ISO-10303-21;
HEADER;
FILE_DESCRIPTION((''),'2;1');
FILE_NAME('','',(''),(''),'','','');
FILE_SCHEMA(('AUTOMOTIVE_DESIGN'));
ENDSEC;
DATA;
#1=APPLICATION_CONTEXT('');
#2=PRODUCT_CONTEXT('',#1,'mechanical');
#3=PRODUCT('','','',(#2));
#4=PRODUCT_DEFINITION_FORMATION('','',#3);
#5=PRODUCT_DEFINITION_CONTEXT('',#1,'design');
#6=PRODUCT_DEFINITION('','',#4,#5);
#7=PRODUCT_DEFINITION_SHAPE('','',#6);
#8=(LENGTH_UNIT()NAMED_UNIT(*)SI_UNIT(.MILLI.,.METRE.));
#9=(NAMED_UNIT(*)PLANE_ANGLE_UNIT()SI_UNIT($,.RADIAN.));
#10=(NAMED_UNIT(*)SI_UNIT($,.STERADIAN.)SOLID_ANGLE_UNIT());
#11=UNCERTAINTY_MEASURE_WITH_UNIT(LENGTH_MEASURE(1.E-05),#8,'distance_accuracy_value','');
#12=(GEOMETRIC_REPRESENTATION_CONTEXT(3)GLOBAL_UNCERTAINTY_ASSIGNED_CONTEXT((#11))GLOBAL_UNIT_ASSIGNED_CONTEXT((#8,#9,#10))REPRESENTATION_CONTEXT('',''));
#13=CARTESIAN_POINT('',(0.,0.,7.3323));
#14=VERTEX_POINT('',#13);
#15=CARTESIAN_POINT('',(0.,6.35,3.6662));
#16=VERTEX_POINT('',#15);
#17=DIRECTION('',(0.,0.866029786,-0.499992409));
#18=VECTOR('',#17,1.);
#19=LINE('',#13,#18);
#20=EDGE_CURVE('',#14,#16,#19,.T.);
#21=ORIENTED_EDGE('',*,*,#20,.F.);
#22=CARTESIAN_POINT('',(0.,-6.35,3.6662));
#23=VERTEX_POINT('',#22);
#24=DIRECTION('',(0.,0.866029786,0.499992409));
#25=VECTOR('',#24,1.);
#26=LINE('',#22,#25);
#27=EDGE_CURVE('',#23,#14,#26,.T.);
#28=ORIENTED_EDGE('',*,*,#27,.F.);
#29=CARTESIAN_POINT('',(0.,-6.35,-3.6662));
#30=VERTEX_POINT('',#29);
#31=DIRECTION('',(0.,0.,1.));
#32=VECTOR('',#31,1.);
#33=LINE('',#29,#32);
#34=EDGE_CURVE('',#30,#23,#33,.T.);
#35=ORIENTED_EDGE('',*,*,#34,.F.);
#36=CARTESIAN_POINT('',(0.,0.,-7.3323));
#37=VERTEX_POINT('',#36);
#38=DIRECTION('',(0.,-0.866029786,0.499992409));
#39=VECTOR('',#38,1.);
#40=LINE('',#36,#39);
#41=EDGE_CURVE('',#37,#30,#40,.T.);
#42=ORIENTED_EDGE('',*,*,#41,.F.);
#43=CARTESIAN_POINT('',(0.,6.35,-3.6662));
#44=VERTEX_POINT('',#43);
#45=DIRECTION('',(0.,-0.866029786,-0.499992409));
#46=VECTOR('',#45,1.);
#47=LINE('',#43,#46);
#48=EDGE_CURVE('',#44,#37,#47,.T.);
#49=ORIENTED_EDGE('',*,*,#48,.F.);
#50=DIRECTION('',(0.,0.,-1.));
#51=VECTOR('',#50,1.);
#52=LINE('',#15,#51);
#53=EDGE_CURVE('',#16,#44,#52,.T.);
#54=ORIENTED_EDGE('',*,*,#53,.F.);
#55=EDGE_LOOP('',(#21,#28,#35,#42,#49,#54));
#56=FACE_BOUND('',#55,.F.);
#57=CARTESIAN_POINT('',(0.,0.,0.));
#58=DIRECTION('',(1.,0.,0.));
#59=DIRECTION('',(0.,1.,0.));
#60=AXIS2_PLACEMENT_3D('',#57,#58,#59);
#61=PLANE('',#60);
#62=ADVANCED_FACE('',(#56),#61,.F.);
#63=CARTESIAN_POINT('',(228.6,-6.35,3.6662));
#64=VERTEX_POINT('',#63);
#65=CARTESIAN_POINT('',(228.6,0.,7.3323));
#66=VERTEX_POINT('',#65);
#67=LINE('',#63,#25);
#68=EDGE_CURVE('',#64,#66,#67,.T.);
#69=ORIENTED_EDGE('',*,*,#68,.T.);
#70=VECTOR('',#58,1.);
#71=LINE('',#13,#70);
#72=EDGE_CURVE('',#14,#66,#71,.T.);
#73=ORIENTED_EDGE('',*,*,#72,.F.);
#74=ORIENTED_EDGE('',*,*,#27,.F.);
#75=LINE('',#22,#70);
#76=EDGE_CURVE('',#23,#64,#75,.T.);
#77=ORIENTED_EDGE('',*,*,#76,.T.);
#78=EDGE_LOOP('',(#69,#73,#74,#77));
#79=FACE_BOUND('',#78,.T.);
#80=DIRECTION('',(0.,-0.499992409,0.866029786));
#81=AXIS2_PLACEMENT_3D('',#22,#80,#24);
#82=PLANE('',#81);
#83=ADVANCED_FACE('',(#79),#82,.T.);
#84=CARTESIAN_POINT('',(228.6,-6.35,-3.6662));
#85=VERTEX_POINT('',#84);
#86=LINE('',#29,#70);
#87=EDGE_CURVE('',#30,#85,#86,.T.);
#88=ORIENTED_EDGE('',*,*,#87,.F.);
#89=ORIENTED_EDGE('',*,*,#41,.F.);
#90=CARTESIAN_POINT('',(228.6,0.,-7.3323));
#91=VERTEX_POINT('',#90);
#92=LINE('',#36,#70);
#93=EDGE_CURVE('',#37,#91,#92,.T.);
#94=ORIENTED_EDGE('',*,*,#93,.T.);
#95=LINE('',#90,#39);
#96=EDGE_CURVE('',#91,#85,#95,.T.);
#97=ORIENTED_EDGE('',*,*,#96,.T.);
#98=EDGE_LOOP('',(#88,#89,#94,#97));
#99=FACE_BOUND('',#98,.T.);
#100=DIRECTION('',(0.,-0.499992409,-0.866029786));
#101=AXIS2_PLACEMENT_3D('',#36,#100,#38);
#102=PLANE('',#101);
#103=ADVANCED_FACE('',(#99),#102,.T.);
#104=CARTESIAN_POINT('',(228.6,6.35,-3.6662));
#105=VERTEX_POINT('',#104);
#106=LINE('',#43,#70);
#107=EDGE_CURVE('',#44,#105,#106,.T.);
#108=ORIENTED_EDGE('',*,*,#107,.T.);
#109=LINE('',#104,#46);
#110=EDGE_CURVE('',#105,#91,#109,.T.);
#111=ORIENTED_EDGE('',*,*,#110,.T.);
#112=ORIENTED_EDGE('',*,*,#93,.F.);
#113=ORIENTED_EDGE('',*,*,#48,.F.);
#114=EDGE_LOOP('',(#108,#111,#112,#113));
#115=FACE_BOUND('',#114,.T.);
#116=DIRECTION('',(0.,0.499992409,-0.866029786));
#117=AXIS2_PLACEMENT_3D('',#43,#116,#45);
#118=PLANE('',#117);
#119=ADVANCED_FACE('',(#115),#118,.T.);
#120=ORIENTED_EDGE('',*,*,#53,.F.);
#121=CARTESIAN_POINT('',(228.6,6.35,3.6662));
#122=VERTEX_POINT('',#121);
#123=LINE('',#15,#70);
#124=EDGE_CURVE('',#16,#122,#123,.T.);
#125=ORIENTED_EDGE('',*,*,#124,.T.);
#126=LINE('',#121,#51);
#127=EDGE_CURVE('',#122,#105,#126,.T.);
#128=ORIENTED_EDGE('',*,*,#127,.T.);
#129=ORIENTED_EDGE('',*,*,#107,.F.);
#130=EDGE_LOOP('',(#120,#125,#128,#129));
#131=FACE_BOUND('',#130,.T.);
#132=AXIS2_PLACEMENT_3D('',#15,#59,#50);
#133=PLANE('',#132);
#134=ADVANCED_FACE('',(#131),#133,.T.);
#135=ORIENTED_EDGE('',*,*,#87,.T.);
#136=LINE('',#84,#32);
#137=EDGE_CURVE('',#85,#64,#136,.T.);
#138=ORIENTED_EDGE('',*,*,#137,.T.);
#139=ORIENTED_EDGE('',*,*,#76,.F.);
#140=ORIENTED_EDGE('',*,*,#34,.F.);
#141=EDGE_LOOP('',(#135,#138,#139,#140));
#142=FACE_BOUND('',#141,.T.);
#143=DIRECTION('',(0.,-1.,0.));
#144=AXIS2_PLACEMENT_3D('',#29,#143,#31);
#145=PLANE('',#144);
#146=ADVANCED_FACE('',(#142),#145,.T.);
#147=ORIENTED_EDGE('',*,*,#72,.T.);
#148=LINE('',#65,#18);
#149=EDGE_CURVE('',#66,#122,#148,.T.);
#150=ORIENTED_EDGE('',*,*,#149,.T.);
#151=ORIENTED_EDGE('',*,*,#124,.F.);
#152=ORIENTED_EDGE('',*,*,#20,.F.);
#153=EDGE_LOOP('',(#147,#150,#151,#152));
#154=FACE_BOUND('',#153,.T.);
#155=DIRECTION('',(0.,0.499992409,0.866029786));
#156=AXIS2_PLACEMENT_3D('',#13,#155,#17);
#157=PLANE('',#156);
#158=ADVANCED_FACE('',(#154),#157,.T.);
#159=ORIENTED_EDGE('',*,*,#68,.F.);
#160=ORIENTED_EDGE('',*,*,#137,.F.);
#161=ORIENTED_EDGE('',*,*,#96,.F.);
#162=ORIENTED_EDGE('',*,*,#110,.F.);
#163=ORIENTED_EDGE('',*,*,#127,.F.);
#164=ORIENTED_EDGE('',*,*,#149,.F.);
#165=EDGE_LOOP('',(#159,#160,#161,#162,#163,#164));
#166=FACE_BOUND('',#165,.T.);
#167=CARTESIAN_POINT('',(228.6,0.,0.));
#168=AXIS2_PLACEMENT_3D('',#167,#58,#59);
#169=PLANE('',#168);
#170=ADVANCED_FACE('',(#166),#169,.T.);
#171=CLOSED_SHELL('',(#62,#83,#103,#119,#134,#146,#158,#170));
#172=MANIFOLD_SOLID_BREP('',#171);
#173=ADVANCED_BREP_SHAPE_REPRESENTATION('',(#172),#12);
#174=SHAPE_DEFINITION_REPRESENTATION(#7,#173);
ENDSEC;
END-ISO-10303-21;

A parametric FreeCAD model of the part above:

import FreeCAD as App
import Part
import Sketcher

V = App.Vector
Q = App.Units.Quantity


def add_polygon(sketch, points):
    """Adds a closed chain of lines whose ends are joined by coincident constraints."""
    first, n = sketch.GeometryCount, len(points)
    for a, b in zip(points, points[1:] + points[:1]):
        sketch.addGeometry(Part.LineSegment(App.Vector(*a, 0), App.Vector(*b, 0)), False)
    for i in range(n):
        sketch.addConstraint(Sketcher.Constraint("Coincident", first + i, 2, first + (i + 1) % n, 1))

doc = App.newDocument("Part")
params = doc.addObject("Spreadsheet::Sheet", "Params")
for row, (alias, value) in enumerate([
    ("pad1_length", "9 in"),
], start=1):
    params.set(f"A{row}", alias)
    params.set(f"B{row}", "=" + value)
    params.setAlias(f"B{row}", alias)

body = doc.addObject("PartDesign::Body", "Body")

sketch1 = doc.addObject("Sketcher::SketchObject", "Sketch")
body.addObject(sketch1)
sketch1.AttachmentSupport = (doc.YZ_Plane, [""])
sketch1.MapMode = "FlatFace"
add_polygon(sketch1, [(-6.35, -3.6662), (0, -7.3323), (6.35, -3.6662), (6.35, 3.6662), (0, 7.3323), (-6.35, 3.6662)])
sketch1.addConstraint(Sketcher.Constraint("Vertical", 2))
sketch1.addConstraint(Sketcher.Constraint("Vertical", 5))
sketch1.addConstraint(Sketcher.Constraint("Symmetric", 0, 2, 3, 2, -1, 1))
sketch1.addConstraint(Sketcher.Constraint("Symmetric", 1, 2, 4, 2, -1, 1))
sketch1.addConstraint(Sketcher.Constraint("PointOnObject", 0, 2, -2))
sketch1.addConstraint(Sketcher.Constraint("Parallel", 0, 3))
sketch1.addConstraint(Sketcher.Constraint("Horizontal", 2, 2, 4, 2))
sketch1.addConstraint(Sketcher.Constraint("DistanceX", 4, 2, 2, 2, Q("0.5 in")))
sketch1.addConstraint(Sketcher.Constraint("Angle", 0, Q("-29.9995 deg")))
sketch1.addConstraint(Sketcher.Constraint("DistanceY", 0, 2, 2, 2, Q("0.433 in")))
pad1 = doc.addObject("PartDesign::Pad", "Pad")
body.addObject(pad1)
pad1.Profile = sketch1
pad1.setExpression("Length", "Params.pad1_length")

doc.recompute()
